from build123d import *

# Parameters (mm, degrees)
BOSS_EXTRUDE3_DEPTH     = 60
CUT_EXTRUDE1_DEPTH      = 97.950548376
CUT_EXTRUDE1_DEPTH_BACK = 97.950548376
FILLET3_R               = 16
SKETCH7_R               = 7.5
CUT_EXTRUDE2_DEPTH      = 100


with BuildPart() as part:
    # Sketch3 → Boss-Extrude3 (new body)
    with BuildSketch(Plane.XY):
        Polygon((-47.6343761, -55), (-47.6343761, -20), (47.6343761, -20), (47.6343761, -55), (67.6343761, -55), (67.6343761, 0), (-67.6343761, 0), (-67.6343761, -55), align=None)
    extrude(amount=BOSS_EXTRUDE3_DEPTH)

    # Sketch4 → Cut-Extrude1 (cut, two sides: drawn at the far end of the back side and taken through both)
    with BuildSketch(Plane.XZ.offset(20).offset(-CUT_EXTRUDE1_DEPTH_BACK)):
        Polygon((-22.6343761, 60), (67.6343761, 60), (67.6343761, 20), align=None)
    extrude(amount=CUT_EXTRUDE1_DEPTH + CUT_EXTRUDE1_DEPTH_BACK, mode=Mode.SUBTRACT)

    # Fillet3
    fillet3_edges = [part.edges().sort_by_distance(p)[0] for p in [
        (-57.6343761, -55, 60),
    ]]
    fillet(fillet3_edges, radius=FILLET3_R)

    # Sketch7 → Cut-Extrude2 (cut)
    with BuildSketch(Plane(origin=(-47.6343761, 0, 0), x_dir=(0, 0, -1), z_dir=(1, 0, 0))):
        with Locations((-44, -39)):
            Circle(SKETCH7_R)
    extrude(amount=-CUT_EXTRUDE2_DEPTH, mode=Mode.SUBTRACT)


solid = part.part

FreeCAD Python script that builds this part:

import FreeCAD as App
import Part
import Sketcher
from FreeCAD import Vector


def edges_at(feature, points):
    """Names of the edges that pass closest to the given points."""
    edges = feature.Shape.Edges
    near = lambda p: min(range(len(edges)), key=lambda i: edges[i].distToShape(Part.Vertex(*p))[0])
    return sorted({f"Edge{near(p) + 1}" for p in points})


def add_polygon(sketch, points):
    """Adds a closed chain of lines whose ends are joined by coincident constraints."""
    first, n = sketch.GeometryCount, len(points)
    for a, b in zip(points, points[1:] + points[:1]):
        sketch.addGeometry(Part.LineSegment(App.Vector(*a, 0), App.Vector(*b, 0)), False)
    for i in range(n):
        sketch.addConstraint(Sketcher.Constraint("Coincident", first + i, 2, first + (i + 1) % n, 1))

doc = App.newDocument("Part")
body = doc.addObject("PartDesign::Body", "Body")

# Sketch on XY plane
sketch1 = body.newObject("Sketcher::SketchObject", "Sketch")
sketch1.AttachmentSupport = (doc.getObject("XY_Plane"), [""])
sketch1.MapMode = "FlatFace"
add_polygon(sketch1, [(-48, -55), (-48, -20), (48, -20), (48, -55), (68, -55), (68, 0), (-68, 0), (-68, -55)])  # lines 0-7
sketch1.addConstraint([
    Sketcher.Constraint("Vertical", 0),
    Sketcher.Constraint("Horizontal", 1),
    Sketcher.Constraint("Vertical", 2),
    Sketcher.Constraint("Horizontal", 3),
    Sketcher.Constraint("Vertical", 4),
    Sketcher.Constraint("Horizontal", 5),
    Sketcher.Constraint("Vertical", 6),
    Sketcher.Constraint("Horizontal", 7),
    Sketcher.Constraint("Symmetric", 4, 2, 5, 2, -1, 1),
    Sketcher.Constraint("Symmetric", 2, 2, 7, 2, -2),
    Sketcher.Constraint("DistanceX", 3, 1, 3, 2, 20.0),
    Sketcher.Constraint("DistanceY", 0, 1, 0, 2, 35.0),
    Sketcher.Constraint("DistanceY", 4, 1, 4, 2, 55.0),
    Sketcher.Constraint("DistanceX", 1, 1, 1, 2, 95.268752),
])
pad1 = body.newObject("PartDesign::Pad", "Pad")
pad1.Profile = sketch1
pad1.Length = 60

# Sketch on XZ plane
sketch2 = body.newObject("Sketcher::SketchObject", "Sketch001")
sketch2.AttachmentSupport = (doc.getObject("XZ_Plane"), [""])
sketch2.MapMode = "FlatFace"
sketch2.AttachmentOffset = App.Placement(Vector(0, 0, 20), App.Rotation())
add_polygon(sketch2, [(68, 60), (-23, 60), (68, 20)])  # lines 0-2
sketch2.addConstraint([
    Sketcher.Constraint("Horizontal", 0),
    Sketcher.Constraint("Vertical", 2),
    Sketcher.Constraint("DistanceY", 2, 1, 2, 2, 40.0),
    Sketcher.Constraint("DistanceY", -1, 1, 0, 2, 60.0),
    Sketcher.Constraint("DistanceX", 0, 2, 0, 1, 90.268752),
    Sketcher.Constraint("DistanceX", 0, 2, -1, 1, 22.634376),
])
pocket1 = body.newObject("PartDesign::Pocket", "Pocket")
pocket1.Profile = sketch2
pocket1.Type = "ThroughAll"
pocket1.Midplane = True
doc.recompute()

fillet = body.newObject("PartDesign::Fillet", "Fillet")
fillet.Base = (pocket1, edges_at(pocket1, [(-57.634, -55, 60)]))
fillet.Radius = 16

# Sketch on YZ plane
sketch3 = body.newObject("Sketcher::SketchObject", "Sketch002")
sketch3.AttachmentSupport = (doc.getObject("YZ_Plane"), [""])
sketch3.MapMode = "FlatFace"
sketch3.AttachmentOffset = App.Placement(Vector(0, 0, -47.634376), App.Rotation())
sketch3.addGeometry(Part.Circle(Vector(-39, 44, 0), Vector(0, 0, 1), 8), False)
sketch3.addConstraint([
    Sketcher.Constraint("Diameter", 0, 15.0),
    Sketcher.Constraint("DistanceX", 0, 3, -1, 1, 39.0),
    Sketcher.Constraint("DistanceY", -1, 1, 0, 3, 44.0),
])
pocket2 = body.newObject("PartDesign::Pocket", "Pocket001")
pocket2.Profile = sketch3
pocket2.Length = 100

doc.recompute()
